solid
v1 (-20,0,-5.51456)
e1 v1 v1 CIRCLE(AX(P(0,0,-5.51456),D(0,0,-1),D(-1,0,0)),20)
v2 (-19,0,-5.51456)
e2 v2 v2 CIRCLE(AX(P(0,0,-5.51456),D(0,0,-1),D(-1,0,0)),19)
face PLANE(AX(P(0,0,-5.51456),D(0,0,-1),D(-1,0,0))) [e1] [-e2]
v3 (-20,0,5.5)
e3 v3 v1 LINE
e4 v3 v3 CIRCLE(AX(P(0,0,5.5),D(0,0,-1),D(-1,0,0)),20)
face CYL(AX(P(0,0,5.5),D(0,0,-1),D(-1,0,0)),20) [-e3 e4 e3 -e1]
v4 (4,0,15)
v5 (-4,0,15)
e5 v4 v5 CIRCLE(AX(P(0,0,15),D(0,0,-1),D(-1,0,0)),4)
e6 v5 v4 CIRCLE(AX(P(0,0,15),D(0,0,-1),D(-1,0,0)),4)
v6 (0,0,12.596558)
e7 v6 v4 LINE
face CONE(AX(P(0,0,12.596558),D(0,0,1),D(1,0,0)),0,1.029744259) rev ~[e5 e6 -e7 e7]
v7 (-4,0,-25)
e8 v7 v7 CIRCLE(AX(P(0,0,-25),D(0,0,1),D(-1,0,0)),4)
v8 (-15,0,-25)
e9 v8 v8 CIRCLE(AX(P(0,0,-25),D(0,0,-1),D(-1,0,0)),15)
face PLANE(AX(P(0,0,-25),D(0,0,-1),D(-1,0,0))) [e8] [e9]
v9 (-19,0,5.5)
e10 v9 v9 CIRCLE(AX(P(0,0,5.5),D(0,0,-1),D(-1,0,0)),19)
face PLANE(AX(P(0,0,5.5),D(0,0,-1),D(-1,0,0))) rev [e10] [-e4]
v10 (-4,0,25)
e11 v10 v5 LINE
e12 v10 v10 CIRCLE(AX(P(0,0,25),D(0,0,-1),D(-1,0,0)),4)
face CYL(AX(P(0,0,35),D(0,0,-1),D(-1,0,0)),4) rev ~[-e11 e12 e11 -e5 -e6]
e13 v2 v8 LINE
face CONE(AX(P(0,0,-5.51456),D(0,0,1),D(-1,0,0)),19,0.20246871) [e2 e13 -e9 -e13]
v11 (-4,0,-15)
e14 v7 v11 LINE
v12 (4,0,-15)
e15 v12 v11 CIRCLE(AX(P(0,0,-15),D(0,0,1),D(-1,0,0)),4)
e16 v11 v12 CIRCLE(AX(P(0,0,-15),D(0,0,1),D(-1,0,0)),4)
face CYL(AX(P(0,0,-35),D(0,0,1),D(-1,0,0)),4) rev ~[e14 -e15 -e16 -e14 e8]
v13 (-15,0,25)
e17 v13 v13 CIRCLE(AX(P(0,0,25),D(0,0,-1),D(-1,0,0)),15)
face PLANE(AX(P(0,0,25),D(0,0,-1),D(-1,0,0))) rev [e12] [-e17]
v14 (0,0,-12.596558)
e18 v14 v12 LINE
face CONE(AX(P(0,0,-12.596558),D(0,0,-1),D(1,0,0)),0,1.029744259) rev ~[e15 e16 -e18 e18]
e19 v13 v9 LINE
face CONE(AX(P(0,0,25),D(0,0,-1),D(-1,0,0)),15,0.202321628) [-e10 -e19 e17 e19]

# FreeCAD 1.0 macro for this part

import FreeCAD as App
import Part
import Sketcher

doc = App.newDocument("Part")
body = doc.addObject("PartDesign::Body", "Body")

# Sketch on XZ plane
sketch1 = body.newObject("Sketcher::SketchObject", "Sketch")
sketch1.AttachmentSupport = (doc.getObject("XZ_Plane"), [""])
sketch1.MapMode = "FlatFace"
sketch1.addGeometry(Part.LineSegment(App.Vector(0, -25, 0), App.Vector(0, 25, 0)), False)
sketch1.addGeometry(Part.LineSegment(App.Vector(0, 25, 0), App.Vector(-15, 25, 0)), False)
sketch1.addGeometry(Part.LineSegment(App.Vector(-15, 25, 0), App.Vector(-19, 5.5, 0)), False)
sketch1.addGeometry(Part.LineSegment(App.Vector(-19, 5.5, 0), App.Vector(-20, 5.5, 0)), False)
sketch1.addGeometry(Part.LineSegment(App.Vector(-20, 5.5, 0), App.Vector(-20, -5.5, 0)), False)
sketch1.addGeometry(Part.LineSegment(App.Vector(-20, -5.5, 0), App.Vector(-19, -5.5, 0)), False)
sketch1.addGeometry(Part.LineSegment(App.Vector(-19, -5.5, 0), App.Vector(-15, -25, 0)), False)
sketch1.addGeometry(Part.LineSegment(App.Vector(-15, -25, 0), App.Vector(0, -25, 0)), False)
sketch1.addConstraint(Sketcher.Constraint("Coincident", 0, 2, 1, 1))
sketch1.addConstraint(Sketcher.Constraint("Coincident", 1, 2, 2, 1))
sketch1.addConstraint(Sketcher.Constraint("Coincident", 2, 2, 3, 1))
sketch1.addConstraint(Sketcher.Constraint("Coincident", 3, 2, 4, 1))
sketch1.addConstraint(Sketcher.Constraint("Coincident", 4, 2, 5, 1))
sketch1.addConstraint(Sketcher.Constraint("Coincident", 5, 2, 6, 1))
sketch1.addConstraint(Sketcher.Constraint("Coincident", 6, 2, 7, 1))
sketch1.addConstraint(Sketcher.Constraint("Coincident", 7, 2, 0, 1))
sketch1.addConstraint(Sketcher.Constraint("Vertical", 0))
sketch1.addConstraint(Sketcher.Constraint("Horizontal", 1))
sketch1.addConstraint(Sketcher.Constraint("Horizontal", 3))
sketch1.addConstraint(Sketcher.Constraint("Vertical", 4))
sketch1.addConstraint(Sketcher.Constraint("Horizontal", 5))
sketch1.addConstraint(Sketcher.Constraint("Horizontal", 7))
sketch1.addConstraint(Sketcher.Constraint("Symmetric", 0, 2, 7, 2, -1, 1))
sketch1.addConstraint(Sketcher.Constraint("Vertical", 2, 2, 5, 2))
sketch1.addConstraint(Sketcher.Constraint("Vertical", 1, 2, 6, 2))
sketch1.addConstraint(Sketcher.Constraint("DistanceX", 1, 2, 1, 1, 15.0))
sketch1.addConstraint(Sketcher.Constraint("DistanceX", 3, 2, 3, 1, 1.0))
sketch1.addConstraint(Sketcher.Constraint("DistanceY", 0, 1, 0, 2, 50.0))
sketch1.addConstraint(Sketcher.Constraint("DistanceX", 2, 2, -1, 1, 19.0))
sketch1.addConstraint(Sketcher.Constraint("DistanceY", -1, 1, 2, 2, 5.5))
sketch1.addConstraint(Sketcher.Constraint("DistanceY", 4, 2, 4, 1, 11.01456))
revolution = body.newObject("PartDesign::Revolution", "Revolution")
revolution.Profile = sketch1
revolution.ReferenceAxis = (sketch1, ["V_Axis"])
revolution.Angle = 360

# Sketch on XY plane
sketch2 = body.newObject("Sketcher::SketchObject", "Sketch001")
sketch2.AttachmentSupport = (doc.getObject("XY_Plane"), [""])
sketch2.MapMode = "FlatFace"
sketch2.AttachmentOffset = App.Placement(App.Vector(0, 0, -25), App.Rotation())
sketch2.addGeometry(Part.Circle(App.Vector(0, 0, 0), App.Vector(0, 0, 1), 4), False)
sketch2.addConstraint(Sketcher.Constraint("Coincident", 0, 3, -1, 1))
sketch2.addConstraint(Sketcher.Constraint("Diameter", 0, 8.0))
doc.recompute()
hole = body.newObject("PartDesign::Hole", "Hole")
hole.Profile = sketch2
hole.ThreadType = "None"
hole.Diameter = 8
hole.DepthType = "Dimension"
hole.Depth = 10
hole.DrillPoint = "Angled"
hole.DrillPointAngle = 118
hole.Reversed = True

# Sketch on XY plane
sketch3 = body.newObject("Sketcher::SketchObject", "Sketch002")
sketch3.AttachmentSupport = (doc.getObject("XY_Plane"), [""])
sketch3.MapMode = "FlatFace"
sketch3.AttachmentOffset = App.Placement(App.Vector(0, 0, 25), App.Rotation())
sketch3.addGeometry(Part.Circle(App.Vector(0, 0, 0), App.Vector(0, 0, 1), 4), False)
sketch3.addConstraint(Sketcher.Constraint("Coincident", 0, 3, -1, 1))
sketch3.addConstraint(Sketcher.Constraint("Diameter", 0, 8.0))
doc.recompute()
hole2 = body.newObject("PartDesign::Hole", "Hole001")
hole2.Profile = sketch3
hole2.ThreadType = "None"
hole2.Diameter = 8
hole2.DepthType = "Dimension"
hole2.Depth = 10
hole2.DrillPoint = "Angled"
hole2.DrillPointAngle = 118

doc.recompute()
